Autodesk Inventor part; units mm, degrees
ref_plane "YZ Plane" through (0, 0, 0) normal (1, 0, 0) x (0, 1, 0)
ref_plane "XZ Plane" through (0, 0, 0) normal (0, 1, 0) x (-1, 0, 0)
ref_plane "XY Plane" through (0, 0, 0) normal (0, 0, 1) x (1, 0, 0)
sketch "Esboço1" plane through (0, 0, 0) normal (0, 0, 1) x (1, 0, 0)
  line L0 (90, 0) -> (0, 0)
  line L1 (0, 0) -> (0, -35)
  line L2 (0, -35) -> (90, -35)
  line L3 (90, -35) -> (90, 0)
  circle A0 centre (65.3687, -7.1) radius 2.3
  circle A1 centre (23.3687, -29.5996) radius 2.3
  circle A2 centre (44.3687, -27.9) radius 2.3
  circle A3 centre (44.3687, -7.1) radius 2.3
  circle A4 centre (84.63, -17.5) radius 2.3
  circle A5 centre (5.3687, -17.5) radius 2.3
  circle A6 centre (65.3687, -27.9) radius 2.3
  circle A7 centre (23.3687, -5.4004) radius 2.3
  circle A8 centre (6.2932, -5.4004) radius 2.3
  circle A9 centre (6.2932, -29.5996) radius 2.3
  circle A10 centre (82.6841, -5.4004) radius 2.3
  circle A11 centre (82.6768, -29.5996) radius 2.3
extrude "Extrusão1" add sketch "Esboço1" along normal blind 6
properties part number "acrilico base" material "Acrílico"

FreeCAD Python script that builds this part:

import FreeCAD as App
import Part
import Sketcher

V = App.Vector
Q = App.Units.Quantity

doc = App.newDocument("Part")
body = doc.addObject("PartDesign::Body", "Body")

# Sketch on XY plane
sketch1 = doc.addObject("Sketcher::SketchObject", "Sketch")
body.addObject(sketch1)
sketch1.AttachmentSupport = (doc.XY_Plane, [""])
sketch1.MapMode = "FlatFace"
sketch1.addGeometry([
    Part.LineSegment(V(90, -35, 0), V(90, 0, 0)),  # 0
    Part.LineSegment(V(90, 0, 0), V(0, 0, 0)),  # 1
    Part.LineSegment(V(0, 0, 0), V(0, -35, 0)),  # 2
    Part.LineSegment(V(0, -35, 0), V(90, -35, 0)),  # 3
    Part.Circle(V(6.3, -29.6, 0), V(0, 0, 1), 2.3),  # 4
    Part.Circle(V(23.4, -29.6, 0), V(0, 0, 1), 2.3),  # 5
    Part.Circle(V(44.4, -27.9, 0), V(0, 0, 1), 2.3),  # 6
    Part.Circle(V(65.4, -27.9, 0), V(0, 0, 1), 2.3),  # 7
    Part.Circle(V(82.7, -29.6, 0), V(0, 0, 1), 2.3),  # 8
    Part.Circle(V(5.4, -17.5, 0), V(0, 0, 1), 2.3),  # 9
    Part.Circle(V(6.3, -5.4, 0), V(0, 0, 1), 2.3),  # 10
    Part.Circle(V(23.4, -5.4, 0), V(0, 0, 1), 2.3),  # 11
    Part.Circle(V(44.4, -7.1, 0), V(0, 0, 1), 2.3),  # 12
    Part.Circle(V(84.6, -17.5, 0), V(0, 0, 1), 2.3),  # 13
    Part.Circle(V(65.4, -7.1, 0), V(0, 0, 1), 2.3),  # 14
    Part.Circle(V(82.7, -5.4, 0), V(0, 0, 1), 2.3),  # 15
], False)
sketch1.addConstraint([
    Sketcher.Constraint("Coincident", 0, 2, 1, 1),
    Sketcher.Constraint("Coincident", 1, 2, 2, 1),
    Sketcher.Constraint("Coincident", 2, 2, 3, 1),
    Sketcher.Constraint("Coincident", 3, 2, 0, 1),
    Sketcher.Constraint("Vertical", 0),
    Sketcher.Constraint("Horizontal", 1),
    Sketcher.Constraint("Vertical", 2),
    Sketcher.Constraint("Horizontal", 3),
    Sketcher.Constraint("Coincident", 1, 2, -1, 1),
    Sketcher.Constraint("Equal", 4, 5),
    Sketcher.Constraint("Equal", 5, 6),
    Sketcher.Constraint("Equal", 6, 7),
    Sketcher.Constraint("Equal", 7, 8),
    Sketcher.Constraint("Equal", 8, 9),
    Sketcher.Constraint("Equal", 9, 10),
    Sketcher.Constraint("Equal", 10, 11),
    Sketcher.Constraint("Equal", 11, 12),
    Sketcher.Constraint("Equal", 12, 13),
    Sketcher.Constraint("Equal", 13, 14),
    Sketcher.Constraint("Equal", 14, 15),
    Sketcher.Constraint("Horizontal", 4, 3, 5, 3),
    Sketcher.Constraint("Horizontal", 6, 3, 7, 3),
    Sketcher.Constraint("Horizontal", 5, 3, 8, 3),
    Sketcher.Constraint("Horizontal", 10, 3, 11, 3),
    Sketcher.Constraint("Horizontal", 9, 3, 13, 3),
    Sketcher.Constraint("Horizontal", 12, 3, 14, 3),
    Sketcher.Constraint("Horizontal", 11, 3, 15, 3),
    Sketcher.Constraint("Vertical", 4, 3, 10, 3),
    Sketcher.Constraint("Vertical", 5, 3, 11, 3),
    Sketcher.Constraint("Vertical", 6, 3, 12, 3),
    Sketcher.Constraint("Vertical", 7, 3, 14, 3),
    Sketcher.Constraint("Diameter", 4, Q("4.6 mm")),
    Sketcher.Constraint("DistanceX", 1, 2, 1, 1, Q("90 mm")),
    Sketcher.Constraint("DistanceY", 0, 1, 0, 2, Q("35 mm")),
    Sketcher.Constraint("DistanceX", 5, 3, 6, 3, Q("21 mm")),
    Sketcher.Constraint("DistanceX", 6, 3, 7, 3, Q("21 mm")),
    Sketcher.Constraint("DistanceX", 9, 3, 5, 3, Q("18 mm")),
    Sketcher.Constraint("DistanceY", 6, 3, -1, 1, Q("27.9 mm")),
    Sketcher.Constraint("DistanceY", 9, 3, -1, 1, Q("17.5 mm")),
    Sketcher.Constraint("DistanceY", 12, 3, -1, 1, Q("7.1 mm")),
    Sketcher.Constraint("DistanceX", -1, 1, 13, 3, Q("84.63 mm")),
    Sketcher.Constraint("DistanceX", -1, 1, 15, 3, Q("82.684 mm")),
    Sketcher.Constraint("DistanceX", 7, 3, 8, 3, Q("17.308 mm")),
    Sketcher.Constraint("DistanceX", -1, 1, 4, 3, Q("6.2932 mm")),
    Sketcher.Constraint("DistanceY", 4, 3, -1, 1, Q("29.5996 mm")),
    Sketcher.Constraint("DistanceX", -1, 1, 5, 3, Q("23.3687 mm")),
    Sketcher.Constraint("DistanceY", 10, 3, -1, 1, Q("5.4004 mm")),
])
pad1 = doc.addObject("PartDesign::Pad", "Pad")
body.addObject(pad1)
pad1.Profile = sketch1
pad1.Length = 6

doc.recompute()
